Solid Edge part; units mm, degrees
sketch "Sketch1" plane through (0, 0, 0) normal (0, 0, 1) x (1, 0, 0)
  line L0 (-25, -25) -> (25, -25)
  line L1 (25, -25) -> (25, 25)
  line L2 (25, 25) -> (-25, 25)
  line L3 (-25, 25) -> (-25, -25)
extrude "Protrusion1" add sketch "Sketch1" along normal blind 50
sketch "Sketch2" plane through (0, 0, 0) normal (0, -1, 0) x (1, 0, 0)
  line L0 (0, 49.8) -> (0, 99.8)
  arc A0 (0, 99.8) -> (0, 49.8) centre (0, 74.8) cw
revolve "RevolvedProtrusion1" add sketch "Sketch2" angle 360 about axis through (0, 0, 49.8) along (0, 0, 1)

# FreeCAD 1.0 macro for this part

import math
import FreeCAD as App
import Part
import Sketcher
from FreeCAD import Vector

doc = App.newDocument("Part")
body = doc.addObject("PartDesign::Body", "Body")

sketch1 = doc.addObject("Sketcher::SketchObject", "Sketch")
body.addObject(sketch1)
sketch1.AttachmentSupport = (doc.XY_Plane, [""])
sketch1.MapMode = "FlatFace"
sketch1.addGeometry([
    Part.LineSegment(Vector(-25, 25, 0), Vector(-25, -25, 0)),
    Part.LineSegment(Vector(-25, -25, 0), Vector(25, -25, 0)),
    Part.LineSegment(Vector(25, -25, 0), Vector(25, 25, 0)),
    Part.LineSegment(Vector(25, 25, 0), Vector(-25, 25, 0)),
], False)
sketch1.addConstraint([
    Sketcher.Constraint("Coincident", 0, 2, 1, 1),
    Sketcher.Constraint("Coincident", 1, 2, 2, 1),
    Sketcher.Constraint("Coincident", 2, 2, 3, 1),
    Sketcher.Constraint("Coincident", 3, 2, 0, 1),
    Sketcher.Constraint("Vertical", 0),
    Sketcher.Constraint("Horizontal", 1),
    Sketcher.Constraint("Vertical", 2),
    Sketcher.Constraint("Horizontal", 3),
    Sketcher.Constraint("Symmetric", 0, 2, 2, 2, -1, 1),
    Sketcher.Constraint("Equal", 3, 0),
    Sketcher.Constraint("DistanceX", 1, 1, 1, 2, 50.0),
])
pad1 = doc.addObject("PartDesign::Pad", "Pad")
body.addObject(pad1)
pad1.Profile = sketch1
pad1.Length = 50

sketch2 = doc.addObject("Sketcher::SketchObject", "Sketch001")
body.addObject(sketch2)
sketch2.AttachmentSupport = (doc.XZ_Plane, [""])
sketch2.MapMode = "FlatFace"
sketch2.addGeometry([
    Part.LineSegment(Vector(0, 99.8, 0), Vector(0, 49.8, 0)),
    Part.ArcOfCircle(Part.Circle(Vector(0, 74.8, 0), Vector(0, 0, 1), 25), math.radians(-90), math.radians(90)),
], False)
sketch2.addConstraint([
    Sketcher.Constraint("Coincident", 0, 1, 1, 2),
    Sketcher.Constraint("Coincident", 1, 1, 0, 2),
    Sketcher.Constraint("Vertical", 0),
    Sketcher.Constraint("PointOnObject", 1, 3, -2),
    Sketcher.Constraint("PointOnObject", 0, 1, -2),
    Sketcher.Constraint("Radius", 1, 25.0),
    Sketcher.Constraint("DistanceY", -1, 1, 1, 3, 74.8),
])
revolution = doc.addObject("PartDesign::Revolution", "Revolution")
body.addObject(revolution)
revolution.Profile = sketch2
revolution.ReferenceAxis = (sketch2, ["V_Axis"])
revolution.Angle = 360

doc.recompute()
